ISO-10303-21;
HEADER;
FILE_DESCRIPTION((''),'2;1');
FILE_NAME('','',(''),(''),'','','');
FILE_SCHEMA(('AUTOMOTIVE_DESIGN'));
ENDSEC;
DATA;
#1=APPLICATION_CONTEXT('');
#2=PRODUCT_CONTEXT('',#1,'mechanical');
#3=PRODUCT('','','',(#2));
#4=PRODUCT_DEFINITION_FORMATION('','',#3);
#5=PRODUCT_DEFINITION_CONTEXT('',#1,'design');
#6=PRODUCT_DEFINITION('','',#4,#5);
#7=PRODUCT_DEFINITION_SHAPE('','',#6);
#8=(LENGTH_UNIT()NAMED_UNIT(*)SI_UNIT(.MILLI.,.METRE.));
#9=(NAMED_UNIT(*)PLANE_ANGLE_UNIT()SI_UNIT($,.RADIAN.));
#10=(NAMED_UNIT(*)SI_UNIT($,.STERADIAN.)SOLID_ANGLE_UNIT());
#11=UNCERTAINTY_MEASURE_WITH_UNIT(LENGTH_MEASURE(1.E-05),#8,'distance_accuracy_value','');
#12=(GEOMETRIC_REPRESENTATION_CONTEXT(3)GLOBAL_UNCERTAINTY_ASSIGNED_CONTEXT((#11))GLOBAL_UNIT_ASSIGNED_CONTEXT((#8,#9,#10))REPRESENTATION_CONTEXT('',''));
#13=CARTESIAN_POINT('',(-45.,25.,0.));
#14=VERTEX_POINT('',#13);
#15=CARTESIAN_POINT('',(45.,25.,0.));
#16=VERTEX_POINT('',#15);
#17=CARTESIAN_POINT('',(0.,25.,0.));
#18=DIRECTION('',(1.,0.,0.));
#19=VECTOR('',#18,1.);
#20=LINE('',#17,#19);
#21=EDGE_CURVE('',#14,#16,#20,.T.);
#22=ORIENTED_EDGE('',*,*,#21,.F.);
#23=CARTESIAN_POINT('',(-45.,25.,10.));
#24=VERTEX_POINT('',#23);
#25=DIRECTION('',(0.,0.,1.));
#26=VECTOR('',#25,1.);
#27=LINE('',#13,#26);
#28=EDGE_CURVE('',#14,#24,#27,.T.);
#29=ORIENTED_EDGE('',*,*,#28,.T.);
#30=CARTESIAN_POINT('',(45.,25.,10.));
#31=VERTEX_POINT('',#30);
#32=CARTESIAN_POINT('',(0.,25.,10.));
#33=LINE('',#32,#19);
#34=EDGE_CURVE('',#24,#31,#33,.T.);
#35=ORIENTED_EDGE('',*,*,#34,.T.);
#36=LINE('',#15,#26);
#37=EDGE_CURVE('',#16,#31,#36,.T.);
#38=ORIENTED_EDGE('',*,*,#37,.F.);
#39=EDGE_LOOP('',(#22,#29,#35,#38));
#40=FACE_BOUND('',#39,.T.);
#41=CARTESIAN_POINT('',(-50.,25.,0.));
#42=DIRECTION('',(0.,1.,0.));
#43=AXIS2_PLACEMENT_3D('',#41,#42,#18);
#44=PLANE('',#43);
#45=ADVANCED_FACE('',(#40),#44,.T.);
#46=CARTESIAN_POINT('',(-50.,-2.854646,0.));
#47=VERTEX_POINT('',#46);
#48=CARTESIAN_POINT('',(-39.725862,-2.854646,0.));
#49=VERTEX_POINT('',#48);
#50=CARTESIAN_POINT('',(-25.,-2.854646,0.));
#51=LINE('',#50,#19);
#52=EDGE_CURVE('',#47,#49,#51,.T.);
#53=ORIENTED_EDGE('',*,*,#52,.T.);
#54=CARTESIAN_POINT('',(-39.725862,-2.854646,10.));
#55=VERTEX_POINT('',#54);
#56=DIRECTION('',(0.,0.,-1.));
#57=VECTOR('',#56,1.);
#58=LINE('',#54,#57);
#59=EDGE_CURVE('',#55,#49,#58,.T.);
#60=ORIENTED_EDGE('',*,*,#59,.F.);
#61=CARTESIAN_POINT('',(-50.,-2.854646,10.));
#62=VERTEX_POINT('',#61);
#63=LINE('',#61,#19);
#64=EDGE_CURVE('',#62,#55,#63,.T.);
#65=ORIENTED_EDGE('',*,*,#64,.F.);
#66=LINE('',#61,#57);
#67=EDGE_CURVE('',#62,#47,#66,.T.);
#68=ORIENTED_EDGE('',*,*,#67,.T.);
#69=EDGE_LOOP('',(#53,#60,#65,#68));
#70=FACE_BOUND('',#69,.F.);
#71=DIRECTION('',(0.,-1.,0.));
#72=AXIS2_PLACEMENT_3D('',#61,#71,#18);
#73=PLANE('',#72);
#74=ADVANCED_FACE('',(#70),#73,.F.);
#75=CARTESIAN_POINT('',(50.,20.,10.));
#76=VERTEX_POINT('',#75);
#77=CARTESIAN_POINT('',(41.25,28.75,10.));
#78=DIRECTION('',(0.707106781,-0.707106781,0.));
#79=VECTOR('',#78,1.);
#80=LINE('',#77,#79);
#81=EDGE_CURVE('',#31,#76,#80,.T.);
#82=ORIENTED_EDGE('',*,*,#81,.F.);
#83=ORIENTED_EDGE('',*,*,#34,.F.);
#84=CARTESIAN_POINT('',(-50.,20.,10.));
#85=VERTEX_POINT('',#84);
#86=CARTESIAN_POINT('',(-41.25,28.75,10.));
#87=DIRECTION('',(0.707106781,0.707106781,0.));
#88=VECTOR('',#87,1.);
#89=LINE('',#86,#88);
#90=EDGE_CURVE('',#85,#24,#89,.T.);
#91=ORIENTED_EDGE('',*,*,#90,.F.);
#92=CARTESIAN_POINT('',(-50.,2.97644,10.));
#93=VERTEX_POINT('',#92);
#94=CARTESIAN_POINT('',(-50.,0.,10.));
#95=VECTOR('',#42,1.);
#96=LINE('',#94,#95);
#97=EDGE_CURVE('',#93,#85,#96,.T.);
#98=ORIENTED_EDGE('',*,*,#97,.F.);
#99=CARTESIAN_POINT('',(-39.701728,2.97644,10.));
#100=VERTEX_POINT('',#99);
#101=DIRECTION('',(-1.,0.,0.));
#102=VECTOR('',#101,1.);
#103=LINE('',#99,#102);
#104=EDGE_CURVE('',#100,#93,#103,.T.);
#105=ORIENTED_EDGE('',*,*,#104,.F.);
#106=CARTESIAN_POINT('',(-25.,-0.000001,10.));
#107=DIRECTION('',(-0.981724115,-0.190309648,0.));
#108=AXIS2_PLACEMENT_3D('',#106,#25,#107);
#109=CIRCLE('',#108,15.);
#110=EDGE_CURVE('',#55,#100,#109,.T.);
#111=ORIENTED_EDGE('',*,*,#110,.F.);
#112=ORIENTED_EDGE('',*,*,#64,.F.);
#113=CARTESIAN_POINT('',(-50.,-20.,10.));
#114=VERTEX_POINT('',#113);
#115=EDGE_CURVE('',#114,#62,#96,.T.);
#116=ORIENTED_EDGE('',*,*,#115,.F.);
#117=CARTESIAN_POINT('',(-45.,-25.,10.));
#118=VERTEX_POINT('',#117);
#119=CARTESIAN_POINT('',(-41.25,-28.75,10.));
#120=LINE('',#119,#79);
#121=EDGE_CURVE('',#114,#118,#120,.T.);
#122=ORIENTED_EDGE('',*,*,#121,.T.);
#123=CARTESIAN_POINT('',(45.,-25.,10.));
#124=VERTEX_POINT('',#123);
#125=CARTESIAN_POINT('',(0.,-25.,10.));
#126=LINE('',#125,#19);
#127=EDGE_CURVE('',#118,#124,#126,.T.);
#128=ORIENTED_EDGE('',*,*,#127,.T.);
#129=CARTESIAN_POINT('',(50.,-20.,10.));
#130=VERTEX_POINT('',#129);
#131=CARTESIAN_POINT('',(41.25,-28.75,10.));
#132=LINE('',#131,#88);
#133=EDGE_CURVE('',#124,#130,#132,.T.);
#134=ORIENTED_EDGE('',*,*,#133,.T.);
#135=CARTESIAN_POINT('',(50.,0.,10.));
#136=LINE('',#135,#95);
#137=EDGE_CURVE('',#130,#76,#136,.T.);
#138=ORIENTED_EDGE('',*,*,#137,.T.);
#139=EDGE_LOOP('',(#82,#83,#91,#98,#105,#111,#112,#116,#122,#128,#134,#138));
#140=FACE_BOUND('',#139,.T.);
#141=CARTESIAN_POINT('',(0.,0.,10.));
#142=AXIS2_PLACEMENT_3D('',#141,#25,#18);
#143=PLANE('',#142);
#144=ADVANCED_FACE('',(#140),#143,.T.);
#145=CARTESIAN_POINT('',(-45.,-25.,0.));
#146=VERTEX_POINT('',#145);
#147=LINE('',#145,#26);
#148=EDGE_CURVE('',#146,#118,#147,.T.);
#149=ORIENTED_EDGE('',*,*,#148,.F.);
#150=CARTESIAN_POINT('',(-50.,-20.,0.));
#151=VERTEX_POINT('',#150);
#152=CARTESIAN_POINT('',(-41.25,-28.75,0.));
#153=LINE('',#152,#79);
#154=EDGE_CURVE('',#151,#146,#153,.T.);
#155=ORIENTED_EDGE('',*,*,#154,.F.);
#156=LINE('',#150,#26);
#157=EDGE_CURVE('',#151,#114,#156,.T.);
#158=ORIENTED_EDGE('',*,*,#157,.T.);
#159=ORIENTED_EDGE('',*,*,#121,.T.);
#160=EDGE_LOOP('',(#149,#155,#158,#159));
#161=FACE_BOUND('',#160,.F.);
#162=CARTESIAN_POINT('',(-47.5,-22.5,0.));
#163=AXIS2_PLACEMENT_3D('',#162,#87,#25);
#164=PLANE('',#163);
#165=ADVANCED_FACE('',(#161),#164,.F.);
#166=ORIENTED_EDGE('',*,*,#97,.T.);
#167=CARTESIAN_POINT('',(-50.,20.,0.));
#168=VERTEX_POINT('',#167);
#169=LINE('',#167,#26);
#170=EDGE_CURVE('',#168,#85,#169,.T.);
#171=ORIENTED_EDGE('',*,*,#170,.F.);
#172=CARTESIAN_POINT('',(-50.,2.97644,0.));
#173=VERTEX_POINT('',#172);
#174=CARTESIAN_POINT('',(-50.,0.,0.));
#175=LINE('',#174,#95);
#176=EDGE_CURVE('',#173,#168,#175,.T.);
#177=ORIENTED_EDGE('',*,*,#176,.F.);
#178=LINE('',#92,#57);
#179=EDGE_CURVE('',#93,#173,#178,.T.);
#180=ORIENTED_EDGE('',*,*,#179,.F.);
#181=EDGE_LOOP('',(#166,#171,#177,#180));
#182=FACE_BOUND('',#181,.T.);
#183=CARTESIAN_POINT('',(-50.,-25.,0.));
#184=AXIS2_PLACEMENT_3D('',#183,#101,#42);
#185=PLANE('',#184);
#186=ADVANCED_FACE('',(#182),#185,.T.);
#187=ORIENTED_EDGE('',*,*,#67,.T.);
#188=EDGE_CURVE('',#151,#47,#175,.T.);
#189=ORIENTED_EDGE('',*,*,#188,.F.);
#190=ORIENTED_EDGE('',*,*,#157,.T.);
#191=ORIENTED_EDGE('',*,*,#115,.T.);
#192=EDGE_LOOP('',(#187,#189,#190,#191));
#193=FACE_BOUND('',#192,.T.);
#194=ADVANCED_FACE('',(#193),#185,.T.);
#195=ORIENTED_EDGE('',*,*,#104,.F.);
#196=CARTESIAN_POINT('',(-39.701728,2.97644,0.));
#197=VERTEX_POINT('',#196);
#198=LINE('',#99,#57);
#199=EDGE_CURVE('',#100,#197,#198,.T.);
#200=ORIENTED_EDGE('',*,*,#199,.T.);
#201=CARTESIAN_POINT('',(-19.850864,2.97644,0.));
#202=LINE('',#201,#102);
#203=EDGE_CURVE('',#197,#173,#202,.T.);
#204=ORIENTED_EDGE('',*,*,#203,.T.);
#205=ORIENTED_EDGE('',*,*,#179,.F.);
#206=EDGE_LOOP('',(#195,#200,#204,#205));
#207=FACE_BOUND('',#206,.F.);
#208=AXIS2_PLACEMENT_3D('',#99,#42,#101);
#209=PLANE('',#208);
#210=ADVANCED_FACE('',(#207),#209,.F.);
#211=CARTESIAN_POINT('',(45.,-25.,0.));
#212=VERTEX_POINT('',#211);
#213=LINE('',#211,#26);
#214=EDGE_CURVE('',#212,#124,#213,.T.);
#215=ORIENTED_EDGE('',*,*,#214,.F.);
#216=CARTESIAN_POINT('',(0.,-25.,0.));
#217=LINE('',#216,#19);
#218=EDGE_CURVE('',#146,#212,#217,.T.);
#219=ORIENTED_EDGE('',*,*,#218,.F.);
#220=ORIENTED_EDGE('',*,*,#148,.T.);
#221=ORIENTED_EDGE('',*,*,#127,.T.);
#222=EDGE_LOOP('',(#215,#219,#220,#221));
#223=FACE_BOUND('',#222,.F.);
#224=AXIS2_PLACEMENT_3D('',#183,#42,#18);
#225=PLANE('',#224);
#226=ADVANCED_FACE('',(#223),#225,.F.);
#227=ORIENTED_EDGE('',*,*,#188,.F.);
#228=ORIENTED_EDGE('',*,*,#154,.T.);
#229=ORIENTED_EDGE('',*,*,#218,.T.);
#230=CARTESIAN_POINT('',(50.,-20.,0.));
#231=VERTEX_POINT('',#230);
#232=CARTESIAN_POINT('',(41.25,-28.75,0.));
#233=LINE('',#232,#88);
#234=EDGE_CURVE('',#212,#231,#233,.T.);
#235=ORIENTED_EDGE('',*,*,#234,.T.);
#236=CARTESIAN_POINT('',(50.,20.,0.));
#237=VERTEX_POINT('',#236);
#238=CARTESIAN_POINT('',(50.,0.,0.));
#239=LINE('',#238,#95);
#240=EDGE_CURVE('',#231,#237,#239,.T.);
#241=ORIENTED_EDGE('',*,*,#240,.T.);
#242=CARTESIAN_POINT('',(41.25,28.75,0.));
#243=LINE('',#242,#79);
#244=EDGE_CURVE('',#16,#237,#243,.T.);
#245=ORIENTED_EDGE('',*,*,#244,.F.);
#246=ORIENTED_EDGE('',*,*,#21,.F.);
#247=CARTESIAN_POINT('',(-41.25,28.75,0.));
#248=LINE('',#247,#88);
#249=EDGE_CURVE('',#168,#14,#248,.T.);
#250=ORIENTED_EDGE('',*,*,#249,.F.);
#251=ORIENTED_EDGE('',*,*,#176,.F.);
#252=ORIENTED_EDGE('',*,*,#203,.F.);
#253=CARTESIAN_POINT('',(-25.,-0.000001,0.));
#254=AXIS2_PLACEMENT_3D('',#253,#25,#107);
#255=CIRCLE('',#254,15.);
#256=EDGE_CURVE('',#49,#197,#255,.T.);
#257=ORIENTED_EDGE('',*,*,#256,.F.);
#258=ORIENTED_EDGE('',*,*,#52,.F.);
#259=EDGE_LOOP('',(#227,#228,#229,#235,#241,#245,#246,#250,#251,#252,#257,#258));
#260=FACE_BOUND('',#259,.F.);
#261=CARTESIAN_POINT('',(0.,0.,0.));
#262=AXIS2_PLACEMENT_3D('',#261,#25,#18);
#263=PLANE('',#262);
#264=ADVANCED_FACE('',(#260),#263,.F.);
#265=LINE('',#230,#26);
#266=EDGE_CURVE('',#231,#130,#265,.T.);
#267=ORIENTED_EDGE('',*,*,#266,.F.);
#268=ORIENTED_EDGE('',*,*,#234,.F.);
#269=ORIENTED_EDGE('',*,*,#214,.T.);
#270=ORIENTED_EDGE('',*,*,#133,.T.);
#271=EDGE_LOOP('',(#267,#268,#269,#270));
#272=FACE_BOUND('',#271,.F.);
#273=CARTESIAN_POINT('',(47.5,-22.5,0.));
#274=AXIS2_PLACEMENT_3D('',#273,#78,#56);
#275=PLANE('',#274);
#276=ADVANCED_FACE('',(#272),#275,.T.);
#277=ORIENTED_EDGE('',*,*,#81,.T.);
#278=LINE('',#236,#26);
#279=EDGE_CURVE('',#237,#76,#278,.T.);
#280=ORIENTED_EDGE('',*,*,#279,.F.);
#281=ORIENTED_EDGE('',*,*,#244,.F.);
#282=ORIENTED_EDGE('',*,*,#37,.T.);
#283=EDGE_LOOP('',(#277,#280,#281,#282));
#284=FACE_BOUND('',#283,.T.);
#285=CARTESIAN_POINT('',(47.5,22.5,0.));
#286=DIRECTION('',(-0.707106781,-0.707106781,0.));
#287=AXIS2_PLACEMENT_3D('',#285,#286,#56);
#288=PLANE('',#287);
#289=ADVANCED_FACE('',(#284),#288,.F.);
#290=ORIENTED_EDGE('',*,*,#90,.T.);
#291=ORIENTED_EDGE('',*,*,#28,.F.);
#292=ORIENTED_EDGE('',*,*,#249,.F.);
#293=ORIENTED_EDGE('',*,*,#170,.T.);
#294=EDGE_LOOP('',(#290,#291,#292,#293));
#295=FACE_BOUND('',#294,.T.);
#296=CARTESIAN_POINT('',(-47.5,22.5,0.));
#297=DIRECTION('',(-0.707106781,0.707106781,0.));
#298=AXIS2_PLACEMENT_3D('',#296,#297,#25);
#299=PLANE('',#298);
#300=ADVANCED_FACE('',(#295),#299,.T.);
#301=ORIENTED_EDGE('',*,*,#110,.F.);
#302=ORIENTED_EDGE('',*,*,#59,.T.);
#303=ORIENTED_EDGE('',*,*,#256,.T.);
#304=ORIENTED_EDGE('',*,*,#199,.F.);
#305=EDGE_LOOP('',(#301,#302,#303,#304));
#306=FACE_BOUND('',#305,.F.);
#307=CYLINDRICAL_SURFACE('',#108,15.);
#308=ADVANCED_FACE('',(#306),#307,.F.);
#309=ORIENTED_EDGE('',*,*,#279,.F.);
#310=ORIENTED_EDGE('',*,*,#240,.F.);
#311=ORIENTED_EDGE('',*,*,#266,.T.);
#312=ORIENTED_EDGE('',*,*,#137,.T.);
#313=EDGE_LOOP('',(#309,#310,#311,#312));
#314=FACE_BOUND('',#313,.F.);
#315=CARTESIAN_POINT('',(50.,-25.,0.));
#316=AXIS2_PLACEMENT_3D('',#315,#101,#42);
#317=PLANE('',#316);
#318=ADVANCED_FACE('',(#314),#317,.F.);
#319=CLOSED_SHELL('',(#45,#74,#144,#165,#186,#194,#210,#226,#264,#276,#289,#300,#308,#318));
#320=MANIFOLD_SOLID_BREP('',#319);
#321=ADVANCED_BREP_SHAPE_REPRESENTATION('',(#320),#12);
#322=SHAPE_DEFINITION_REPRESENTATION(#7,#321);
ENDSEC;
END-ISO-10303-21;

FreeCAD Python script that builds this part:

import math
import FreeCAD as App
import Part
import Sketcher

V = App.Vector


def edges_at(feature, points):
    """Names of the edges that pass closest to the given points."""
    edges = feature.Shape.Edges
    near = lambda p: min(range(len(edges)), key=lambda i: edges[i].distToShape(Part.Vertex(*p))[0])
    return sorted({f"Edge{near(p) + 1}" for p in points})

doc = App.newDocument("Part")
params = doc.addObject("Spreadsheet::Sheet", "Params")
for row, (alias, value) in enumerate([
    ("sketch1_width", "100 mm"),
    ("sketch1_height", "50 mm"),
    ("pad1_length", "10 mm"),
    ("sketch2_radius", "15 mm"),
    ("pocket1_length", "25 mm"),
    ("chamfer_size", "5 mm"),
], start=1):
    params.set(f"A{row}", alias)
    params.set(f"B{row}", "=" + value)
    params.setAlias(f"B{row}", alias)

body = doc.addObject("PartDesign::Body", "Body")

# Sketch on XY plane
sketch1 = body.newObject("Sketcher::SketchObject", "Sketch")
sketch1.AttachmentSupport = (doc.getObject("XY_Plane"), [""])
sketch1.MapMode = "FlatFace"
sketch1.addGeometry([
    Part.LineSegment(V(-50, 25, 0), V(-50, -25, 0)),
    Part.LineSegment(V(-50, -25, 0), V(50, -25, 0)),
    Part.LineSegment(V(50, -25, 0), V(50, 25, 0)),
    Part.LineSegment(V(50, 25, 0), V(-50, 25, 0)),
], False)
sketch1.addConstraint([
    Sketcher.Constraint("Coincident", 0, 2, 1, 1),
    Sketcher.Constraint("Coincident", 1, 2, 2, 1),
    Sketcher.Constraint("Coincident", 2, 2, 3, 1),
    Sketcher.Constraint("Coincident", 3, 2, 0, 1),
    Sketcher.Constraint("Vertical", 0),
    Sketcher.Constraint("Horizontal", 1),
    Sketcher.Constraint("Vertical", 2),
    Sketcher.Constraint("Horizontal", 3),
    Sketcher.Constraint("Symmetric", 0, 2, 2, 2, -1, 1),
    Sketcher.Constraint("DistanceX", 1, 1, 1, 2, 100.0),
    Sketcher.Constraint("DistanceY", 0, 2, 0, 1, 50.0),
])
sketch1.setExpression("Constraints[9]", "Params.sketch1_width")
sketch1.setExpression("Constraints[10]", "Params.sketch1_height")
pad1 = body.newObject("PartDesign::Pad", "Pad")
pad1.Profile = sketch1
pad1.setExpression("Length", "Params.pad1_length")

# Sketch on XY plane
sketch2 = body.newObject("Sketcher::SketchObject", "Sketch001")
sketch2.AttachmentSupport = (doc.getObject("XY_Plane"), [""])
sketch2.MapMode = "FlatFace"
sketch2.AttachmentOffset = App.Placement(V(0, 0, 10), App.Rotation())
sketch2.addGeometry([
    Part.LineSegment(V(-50, -3, 0), V(-40, -3, 0)),
    Part.ArcOfCircle(Part.Circle(V(-25, 0, 0), V(0, 0, 1), 15), math.radians(-169), math.radians(169)),
    Part.LineSegment(V(-40, 3, 0), V(-50, 3, 0)),
    Part.LineSegment(V(-50, 3, 0), V(-50, -3, 0)),
], False)
sketch2.addConstraint([
    Sketcher.Constraint("Coincident", 0, 2, 1, 1),
    Sketcher.Constraint("Coincident", 1, 2, 2, 1),
    Sketcher.Constraint("Coincident", 2, 2, 3, 1),
    Sketcher.Constraint("Coincident", 3, 2, 0, 1),
    Sketcher.Constraint("Horizontal", 0),
    Sketcher.Constraint("Horizontal", 2),
    Sketcher.Constraint("Vertical", 3),
    Sketcher.Constraint("PointOnObject", 1, 3, -1),
    Sketcher.Constraint("Radius", 1, 15.0),
    Sketcher.Constraint("DistanceX", 1, 3, -1, 1, 25.0),
    Sketcher.Constraint("DistanceX", 2, 2, -1, 1, 50.0),
    Sketcher.Constraint("DistanceX", 0, 1, 0, 2, 10.274138),
    Sketcher.Constraint("DistanceX", 2, 2, 2, 1, 10.298272),
])
sketch2.setExpression("Constraints[8]", "Params.sketch2_radius")
pocket1 = body.newObject("PartDesign::Pocket", "Pocket")
pocket1.Profile = sketch2
pocket1.setExpression("Length", "Params.pocket1_length")
doc.recompute()

chamfer = body.newObject("PartDesign::Chamfer", "Chamfer")
chamfer.Base = (pocket1, edges_at(pocket1, [
    (50, 25, 5),
    (50, -25, 5),
    (-50, 25, 5),
    (-50, -25, 5),
]))
chamfer.setExpression("Size", "Params.chamfer_size")

doc.recompute()
